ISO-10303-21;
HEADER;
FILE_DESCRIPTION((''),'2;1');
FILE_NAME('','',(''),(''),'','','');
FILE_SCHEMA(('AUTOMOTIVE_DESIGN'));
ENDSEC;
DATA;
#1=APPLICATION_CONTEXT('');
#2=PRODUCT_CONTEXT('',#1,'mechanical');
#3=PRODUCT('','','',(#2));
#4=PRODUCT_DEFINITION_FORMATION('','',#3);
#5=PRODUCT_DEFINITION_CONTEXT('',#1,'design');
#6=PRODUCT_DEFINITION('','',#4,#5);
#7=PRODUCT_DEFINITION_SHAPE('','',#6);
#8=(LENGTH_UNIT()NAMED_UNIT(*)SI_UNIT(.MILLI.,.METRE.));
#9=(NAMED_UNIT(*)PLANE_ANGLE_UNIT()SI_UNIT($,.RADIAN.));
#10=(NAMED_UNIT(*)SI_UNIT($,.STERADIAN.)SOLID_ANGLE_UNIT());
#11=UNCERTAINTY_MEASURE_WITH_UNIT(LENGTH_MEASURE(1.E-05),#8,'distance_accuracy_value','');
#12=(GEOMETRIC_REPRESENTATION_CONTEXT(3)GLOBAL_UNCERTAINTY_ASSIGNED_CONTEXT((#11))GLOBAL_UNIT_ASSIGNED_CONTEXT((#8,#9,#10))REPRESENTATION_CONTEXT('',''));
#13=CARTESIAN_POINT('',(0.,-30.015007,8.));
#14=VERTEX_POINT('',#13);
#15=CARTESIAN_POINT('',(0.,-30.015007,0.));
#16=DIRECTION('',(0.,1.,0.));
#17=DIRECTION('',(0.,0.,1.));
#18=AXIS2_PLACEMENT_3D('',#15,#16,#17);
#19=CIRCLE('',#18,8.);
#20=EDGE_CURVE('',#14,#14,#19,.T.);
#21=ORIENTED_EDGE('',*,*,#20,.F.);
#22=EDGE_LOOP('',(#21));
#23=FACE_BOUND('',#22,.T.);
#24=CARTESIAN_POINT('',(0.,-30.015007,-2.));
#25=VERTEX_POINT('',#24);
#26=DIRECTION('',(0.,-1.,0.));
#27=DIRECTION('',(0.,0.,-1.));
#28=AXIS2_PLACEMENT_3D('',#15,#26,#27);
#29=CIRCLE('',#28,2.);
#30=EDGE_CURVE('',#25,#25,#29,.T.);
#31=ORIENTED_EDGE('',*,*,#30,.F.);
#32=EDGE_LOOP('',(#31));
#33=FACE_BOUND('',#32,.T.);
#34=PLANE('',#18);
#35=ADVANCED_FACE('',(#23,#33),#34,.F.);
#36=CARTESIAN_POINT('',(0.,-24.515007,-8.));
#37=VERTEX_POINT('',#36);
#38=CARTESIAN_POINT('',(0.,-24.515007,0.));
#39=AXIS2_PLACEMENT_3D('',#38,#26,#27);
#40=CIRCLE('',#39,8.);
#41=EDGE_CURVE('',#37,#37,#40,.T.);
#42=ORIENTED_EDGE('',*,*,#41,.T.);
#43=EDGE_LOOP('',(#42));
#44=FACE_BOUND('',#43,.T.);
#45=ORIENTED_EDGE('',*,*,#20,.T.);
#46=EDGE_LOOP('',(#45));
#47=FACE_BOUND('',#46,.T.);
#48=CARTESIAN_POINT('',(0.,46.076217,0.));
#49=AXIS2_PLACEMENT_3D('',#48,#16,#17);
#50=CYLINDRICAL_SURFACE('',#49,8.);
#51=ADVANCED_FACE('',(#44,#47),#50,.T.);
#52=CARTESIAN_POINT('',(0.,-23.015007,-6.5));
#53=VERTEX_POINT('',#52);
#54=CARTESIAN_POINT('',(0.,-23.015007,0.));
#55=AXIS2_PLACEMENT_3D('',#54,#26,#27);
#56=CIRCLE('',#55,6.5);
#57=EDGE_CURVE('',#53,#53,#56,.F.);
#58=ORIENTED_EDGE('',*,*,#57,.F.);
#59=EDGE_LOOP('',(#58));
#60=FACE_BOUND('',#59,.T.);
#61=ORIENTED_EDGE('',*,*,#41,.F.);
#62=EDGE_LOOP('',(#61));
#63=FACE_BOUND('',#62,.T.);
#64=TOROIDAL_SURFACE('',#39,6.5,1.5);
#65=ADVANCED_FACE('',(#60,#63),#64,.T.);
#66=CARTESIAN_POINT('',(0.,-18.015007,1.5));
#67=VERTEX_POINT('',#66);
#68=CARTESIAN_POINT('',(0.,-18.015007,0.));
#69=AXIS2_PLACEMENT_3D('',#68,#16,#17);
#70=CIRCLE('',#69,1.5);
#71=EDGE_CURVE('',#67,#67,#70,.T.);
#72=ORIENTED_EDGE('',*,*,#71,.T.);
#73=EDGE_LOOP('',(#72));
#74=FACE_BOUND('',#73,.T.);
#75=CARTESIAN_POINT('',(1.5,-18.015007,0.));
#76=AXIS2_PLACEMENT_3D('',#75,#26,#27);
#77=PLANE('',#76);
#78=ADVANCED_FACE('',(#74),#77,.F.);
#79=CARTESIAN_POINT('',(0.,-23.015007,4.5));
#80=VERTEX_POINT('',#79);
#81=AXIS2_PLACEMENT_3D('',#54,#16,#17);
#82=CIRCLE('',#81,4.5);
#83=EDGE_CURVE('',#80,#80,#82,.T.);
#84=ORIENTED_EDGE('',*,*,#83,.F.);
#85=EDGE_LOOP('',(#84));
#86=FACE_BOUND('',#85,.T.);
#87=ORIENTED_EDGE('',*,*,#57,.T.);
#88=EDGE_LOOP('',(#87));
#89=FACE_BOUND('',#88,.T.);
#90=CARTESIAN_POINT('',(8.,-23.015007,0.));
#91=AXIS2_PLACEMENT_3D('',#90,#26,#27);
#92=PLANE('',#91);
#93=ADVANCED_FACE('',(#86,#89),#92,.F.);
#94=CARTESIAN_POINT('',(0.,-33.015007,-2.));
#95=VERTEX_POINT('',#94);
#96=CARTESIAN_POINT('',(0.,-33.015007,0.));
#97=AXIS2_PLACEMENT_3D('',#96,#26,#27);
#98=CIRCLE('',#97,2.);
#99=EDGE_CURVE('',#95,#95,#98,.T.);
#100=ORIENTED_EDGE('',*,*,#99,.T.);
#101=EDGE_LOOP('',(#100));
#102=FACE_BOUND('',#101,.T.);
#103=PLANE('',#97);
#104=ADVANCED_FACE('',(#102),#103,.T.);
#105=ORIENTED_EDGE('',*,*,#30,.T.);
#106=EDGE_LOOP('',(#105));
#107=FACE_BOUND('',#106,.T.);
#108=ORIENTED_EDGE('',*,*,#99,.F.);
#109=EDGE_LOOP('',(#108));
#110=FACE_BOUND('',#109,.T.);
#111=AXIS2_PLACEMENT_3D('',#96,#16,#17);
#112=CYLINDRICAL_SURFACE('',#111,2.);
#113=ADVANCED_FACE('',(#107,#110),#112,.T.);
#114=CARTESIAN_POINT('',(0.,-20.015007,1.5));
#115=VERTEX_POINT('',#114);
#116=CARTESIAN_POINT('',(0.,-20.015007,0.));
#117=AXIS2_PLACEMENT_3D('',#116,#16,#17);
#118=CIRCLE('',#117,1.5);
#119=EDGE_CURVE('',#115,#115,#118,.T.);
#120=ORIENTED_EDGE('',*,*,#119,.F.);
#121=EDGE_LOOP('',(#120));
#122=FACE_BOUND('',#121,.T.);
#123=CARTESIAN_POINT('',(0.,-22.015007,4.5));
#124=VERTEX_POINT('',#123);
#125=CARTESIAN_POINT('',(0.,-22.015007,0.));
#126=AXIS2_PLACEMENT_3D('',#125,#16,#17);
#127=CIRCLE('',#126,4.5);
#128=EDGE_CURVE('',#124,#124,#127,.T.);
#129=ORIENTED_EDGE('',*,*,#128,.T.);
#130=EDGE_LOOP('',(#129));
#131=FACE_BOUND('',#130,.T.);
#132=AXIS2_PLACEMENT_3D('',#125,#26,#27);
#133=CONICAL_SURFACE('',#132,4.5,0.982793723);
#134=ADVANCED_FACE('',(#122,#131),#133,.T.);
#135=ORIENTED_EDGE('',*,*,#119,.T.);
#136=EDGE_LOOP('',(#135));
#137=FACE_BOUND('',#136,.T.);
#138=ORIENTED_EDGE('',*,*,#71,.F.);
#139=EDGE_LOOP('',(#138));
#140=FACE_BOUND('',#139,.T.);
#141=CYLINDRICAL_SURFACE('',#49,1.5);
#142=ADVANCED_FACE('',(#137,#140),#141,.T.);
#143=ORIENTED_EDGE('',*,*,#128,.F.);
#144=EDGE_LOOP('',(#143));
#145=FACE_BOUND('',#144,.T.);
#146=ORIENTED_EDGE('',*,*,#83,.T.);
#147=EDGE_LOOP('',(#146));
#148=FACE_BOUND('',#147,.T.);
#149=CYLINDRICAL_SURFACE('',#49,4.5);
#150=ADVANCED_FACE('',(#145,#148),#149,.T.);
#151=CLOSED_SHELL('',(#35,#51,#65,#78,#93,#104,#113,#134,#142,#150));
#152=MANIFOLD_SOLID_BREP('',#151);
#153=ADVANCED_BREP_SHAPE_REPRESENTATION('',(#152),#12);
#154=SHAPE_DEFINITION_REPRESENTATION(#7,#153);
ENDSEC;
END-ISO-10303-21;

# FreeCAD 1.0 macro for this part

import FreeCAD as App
import Part
import Sketcher
Q = App.Units.Quantity


def edges_at(feature, points):
    """Names of the edges that pass closest to the given points."""
    edges = feature.Shape.Edges
    near = lambda p: min(range(len(edges)), key=lambda i: edges[i].distToShape(Part.Vertex(*p))[0])
    return sorted({f"Edge{near(p) + 1}" for p in points})

doc = App.newDocument("Part")
body = doc.addObject("PartDesign::Body", "Body")

# Sketch on XY plane
sketch1 = doc.addObject("Sketcher::SketchObject", "Sketch")
body.addObject(sketch1)
sketch1.AttachmentSupport = (doc.XY_Plane, [""])
sketch1.MapMode = "FlatFace"
sketch1.addGeometry([
    Part.LineSegment(App.Vector(0, -30, 0), App.Vector(8, -30, 0)),  # 0
    Part.LineSegment(App.Vector(8, -30, 0), App.Vector(8, -23, 0)),  # 1
    Part.LineSegment(App.Vector(8, -23, 0), App.Vector(4.5, -23, 0)),  # 2
    Part.LineSegment(App.Vector(4.5, -23, 0), App.Vector(4.5, -22, 0)),  # 3
    Part.LineSegment(App.Vector(4.5, -22, 0), App.Vector(1.5, -20, 0)),  # 4
    Part.LineSegment(App.Vector(1.5, -20, 0), App.Vector(1.5, -18, 0)),  # 5
    Part.LineSegment(App.Vector(1.5, -18, 0), App.Vector(0, -18, 0)),  # 6
    Part.LineSegment(App.Vector(0, -18, 0), App.Vector(0, -30, 0)),  # 7
], False)
sketch1.addConstraint([
    Sketcher.Constraint("Coincident", 0, 2, 1, 1),
    Sketcher.Constraint("Coincident", 1, 2, 2, 1),
    Sketcher.Constraint("Coincident", 2, 2, 3, 1),
    Sketcher.Constraint("Coincident", 3, 2, 4, 1),
    Sketcher.Constraint("Coincident", 4, 2, 5, 1),
    Sketcher.Constraint("Coincident", 5, 2, 6, 1),
    Sketcher.Constraint("Coincident", 6, 2, 7, 1),
    Sketcher.Constraint("Coincident", 7, 2, 0, 1),
    Sketcher.Constraint("Horizontal", 0),
    Sketcher.Constraint("Vertical", 1),
    Sketcher.Constraint("Horizontal", 2),
    Sketcher.Constraint("Vertical", 3),
    Sketcher.Constraint("Vertical", 5),
    Sketcher.Constraint("Horizontal", 6),
    Sketcher.Constraint("Vertical", 7),
    Sketcher.Constraint("PointOnObject", 6, 2, -2),
    Sketcher.Constraint("DistanceX", 0, 1, 0, 2, Q("8 mm")),
    Sketcher.Constraint("DistanceY", 1, 1, 1, 2, Q("7 mm")),
    Sketcher.Constraint("DistanceY", 3, 1, 3, 2, Q("1 mm")),
    Sketcher.Constraint("DistanceY", 5, 1, 5, 2, Q("2 mm")),
    Sketcher.Constraint("DistanceY", 7, 2, 7, 1, Q("12 mm")),
    Sketcher.Constraint("DistanceX", 2, 2, 2, 1, Q("3.5 mm")),
    Sketcher.Constraint("DistanceX", 6, 2, 6, 1, Q("1.5 mm")),
    Sketcher.Constraint("DistanceY", 0, 2, -1, 1, Q("30.015007 mm")),
])
revolution = doc.addObject("PartDesign::Revolution", "Revolution")
body.addObject(revolution)
revolution.Profile = sketch1
revolution.ReferenceAxis = (sketch1, ["V_Axis"])
revolution.Angle = 360
doc.recompute()

fillet = doc.addObject("PartDesign::Fillet", "Fillet")
body.addObject(fillet)
fillet.Base = (revolution, edges_at(revolution, [(-8, -23.015, 0)]))
fillet.Radius = 1.5

# Sketch on XZ plane
sketch2 = doc.addObject("Sketcher::SketchObject", "Sketch001")
body.addObject(sketch2)
sketch2.AttachmentSupport = (doc.XZ_Plane, [""])
sketch2.MapMode = "FlatFace"
sketch2.AttachmentOffset = App.Placement(App.Vector(0, 0, 30.015007), App.Rotation())
sketch2.addGeometry(Part.Circle(App.Vector(0, 0, 0), App.Vector(0, 0, 1), 2), False)
sketch2.addConstraint([
    Sketcher.Constraint("Coincident", 0, 3, -1, 1),
    Sketcher.Constraint("Diameter", 0, Q("4 mm")),
])
pad1 = doc.addObject("PartDesign::Pad", "Pad")
body.addObject(pad1)
pad1.Profile = sketch2
pad1.Length = 3

doc.recompute()
